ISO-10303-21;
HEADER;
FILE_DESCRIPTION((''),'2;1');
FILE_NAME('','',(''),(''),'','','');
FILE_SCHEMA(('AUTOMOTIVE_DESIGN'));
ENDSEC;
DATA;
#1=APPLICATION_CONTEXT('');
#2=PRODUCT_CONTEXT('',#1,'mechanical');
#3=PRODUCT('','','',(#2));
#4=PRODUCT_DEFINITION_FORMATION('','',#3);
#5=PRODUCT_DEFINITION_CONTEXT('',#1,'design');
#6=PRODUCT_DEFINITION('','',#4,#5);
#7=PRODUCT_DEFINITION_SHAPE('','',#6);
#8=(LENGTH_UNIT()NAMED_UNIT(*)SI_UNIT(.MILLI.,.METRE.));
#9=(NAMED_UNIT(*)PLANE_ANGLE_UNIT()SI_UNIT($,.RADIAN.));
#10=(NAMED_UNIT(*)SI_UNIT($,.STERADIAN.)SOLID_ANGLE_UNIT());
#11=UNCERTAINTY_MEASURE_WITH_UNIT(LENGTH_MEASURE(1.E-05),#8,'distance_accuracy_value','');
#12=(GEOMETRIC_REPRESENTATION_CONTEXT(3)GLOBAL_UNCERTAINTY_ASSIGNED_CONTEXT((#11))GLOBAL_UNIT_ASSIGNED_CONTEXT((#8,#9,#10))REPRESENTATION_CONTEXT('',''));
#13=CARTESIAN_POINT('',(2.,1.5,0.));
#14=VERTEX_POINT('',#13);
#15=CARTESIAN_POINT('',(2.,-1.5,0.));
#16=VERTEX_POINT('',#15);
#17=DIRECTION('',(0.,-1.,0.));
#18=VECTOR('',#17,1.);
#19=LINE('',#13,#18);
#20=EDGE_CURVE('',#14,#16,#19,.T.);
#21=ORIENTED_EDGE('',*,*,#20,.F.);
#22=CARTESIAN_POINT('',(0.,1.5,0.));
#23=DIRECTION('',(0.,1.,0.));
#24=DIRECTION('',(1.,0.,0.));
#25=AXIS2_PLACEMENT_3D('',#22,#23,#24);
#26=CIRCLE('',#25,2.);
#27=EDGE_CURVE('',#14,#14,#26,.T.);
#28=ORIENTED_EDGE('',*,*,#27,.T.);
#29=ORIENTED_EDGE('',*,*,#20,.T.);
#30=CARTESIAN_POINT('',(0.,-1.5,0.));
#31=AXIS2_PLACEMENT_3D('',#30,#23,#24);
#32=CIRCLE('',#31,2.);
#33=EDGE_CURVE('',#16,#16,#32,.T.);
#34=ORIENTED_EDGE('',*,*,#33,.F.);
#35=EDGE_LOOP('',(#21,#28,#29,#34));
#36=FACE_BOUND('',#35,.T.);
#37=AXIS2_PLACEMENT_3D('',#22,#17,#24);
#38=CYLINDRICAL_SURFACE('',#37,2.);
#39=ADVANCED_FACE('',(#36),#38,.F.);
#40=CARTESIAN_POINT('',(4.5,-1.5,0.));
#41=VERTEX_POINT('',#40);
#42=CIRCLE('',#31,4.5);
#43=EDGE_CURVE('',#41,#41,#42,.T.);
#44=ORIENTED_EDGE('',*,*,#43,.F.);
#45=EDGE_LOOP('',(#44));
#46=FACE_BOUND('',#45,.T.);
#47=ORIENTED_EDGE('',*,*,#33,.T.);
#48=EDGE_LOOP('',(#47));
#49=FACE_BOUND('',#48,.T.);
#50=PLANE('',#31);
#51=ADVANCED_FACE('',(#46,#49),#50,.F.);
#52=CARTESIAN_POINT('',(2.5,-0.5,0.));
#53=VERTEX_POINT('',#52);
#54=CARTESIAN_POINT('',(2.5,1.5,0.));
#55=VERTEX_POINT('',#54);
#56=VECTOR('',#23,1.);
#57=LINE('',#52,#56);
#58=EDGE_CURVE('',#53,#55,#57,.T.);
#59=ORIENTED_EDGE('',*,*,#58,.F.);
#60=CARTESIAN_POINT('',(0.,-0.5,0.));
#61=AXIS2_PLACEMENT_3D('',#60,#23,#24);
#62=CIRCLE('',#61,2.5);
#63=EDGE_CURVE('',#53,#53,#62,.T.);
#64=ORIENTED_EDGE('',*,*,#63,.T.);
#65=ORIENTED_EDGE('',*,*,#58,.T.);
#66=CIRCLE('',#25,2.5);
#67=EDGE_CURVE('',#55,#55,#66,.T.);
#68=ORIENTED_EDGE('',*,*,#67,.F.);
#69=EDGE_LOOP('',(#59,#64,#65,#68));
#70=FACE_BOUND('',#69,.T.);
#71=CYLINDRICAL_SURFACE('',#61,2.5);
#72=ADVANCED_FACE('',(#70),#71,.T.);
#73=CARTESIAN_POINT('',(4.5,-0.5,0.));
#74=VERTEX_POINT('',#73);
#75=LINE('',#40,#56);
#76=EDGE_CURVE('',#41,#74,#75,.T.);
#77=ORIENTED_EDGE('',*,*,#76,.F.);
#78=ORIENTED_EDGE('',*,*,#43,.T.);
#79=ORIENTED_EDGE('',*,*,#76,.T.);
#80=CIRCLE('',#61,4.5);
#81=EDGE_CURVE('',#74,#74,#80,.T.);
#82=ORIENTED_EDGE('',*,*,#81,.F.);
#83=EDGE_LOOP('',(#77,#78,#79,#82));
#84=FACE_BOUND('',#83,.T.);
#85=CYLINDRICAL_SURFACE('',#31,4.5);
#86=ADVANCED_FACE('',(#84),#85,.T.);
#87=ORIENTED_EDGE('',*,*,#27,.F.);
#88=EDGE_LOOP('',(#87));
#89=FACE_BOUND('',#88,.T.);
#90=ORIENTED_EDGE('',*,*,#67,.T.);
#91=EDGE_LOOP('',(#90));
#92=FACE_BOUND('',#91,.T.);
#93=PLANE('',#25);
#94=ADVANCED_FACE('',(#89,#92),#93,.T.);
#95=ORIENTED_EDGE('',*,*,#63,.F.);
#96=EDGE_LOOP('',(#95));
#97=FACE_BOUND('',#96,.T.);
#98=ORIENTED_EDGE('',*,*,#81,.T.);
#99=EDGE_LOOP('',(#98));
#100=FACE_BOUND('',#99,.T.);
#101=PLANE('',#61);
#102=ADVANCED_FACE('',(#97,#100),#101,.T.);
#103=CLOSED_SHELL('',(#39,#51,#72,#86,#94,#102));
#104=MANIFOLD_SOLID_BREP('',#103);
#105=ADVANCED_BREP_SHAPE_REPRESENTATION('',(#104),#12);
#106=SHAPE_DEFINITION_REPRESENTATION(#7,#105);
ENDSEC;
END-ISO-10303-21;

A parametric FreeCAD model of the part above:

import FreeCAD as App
import Part
import Sketcher
from FreeCAD import Vector


def add_polygon(sketch, points):
    """Adds a closed chain of lines whose ends are joined by coincident constraints."""
    first, n = sketch.GeometryCount, len(points)
    for a, b in zip(points, points[1:] + points[:1]):
        sketch.addGeometry(Part.LineSegment(App.Vector(*a, 0), App.Vector(*b, 0)), False)
    for i in range(n):
        sketch.addConstraint(Sketcher.Constraint("Coincident", first + i, 2, first + (i + 1) % n, 1))

doc = App.newDocument("Part")
body = doc.addObject("PartDesign::Body", "Body")

# Sketch on XY plane
sketch1 = body.newObject("Sketcher::SketchObject", "Sketch")
sketch1.AttachmentSupport = (doc.getObject("XY_Plane"), [""])
sketch1.MapMode = "FlatFace"
add_polygon(sketch1, [(2.5, 1.5), (2, 1.5), (2, -1.5), (4.5, -1.5), (4.5, -0.5), (2.5, -0.5)])  # lines 0-5
sketch1.addConstraint(Sketcher.Constraint("Horizontal", 0))
sketch1.addConstraint(Sketcher.Constraint("Vertical", 1))
sketch1.addConstraint(Sketcher.Constraint("Horizontal", 2))
sketch1.addConstraint(Sketcher.Constraint("Vertical", 3))
sketch1.addConstraint(Sketcher.Constraint("Horizontal", 4))
sketch1.addConstraint(Sketcher.Constraint("Vertical", 5))
sketch1.addConstraint(Sketcher.Constraint("Equal", 4, 5))
sketch1.addConstraint(Sketcher.Constraint("DistanceX", 4, 2, 4, 1, 2.0))
sketch1.addConstraint(Sketcher.Constraint("DistanceY", 3, 1, 3, 2, 1.0))
sketch1.addConstraint(Sketcher.Constraint("DistanceX", 2, 1, 2, 2, 2.5))
sketch1.addConstraint(Sketcher.Constraint("DistanceX", -1, 1, 0, 2, 2.0))
sketch1.addConstraint(Sketcher.Constraint("DistanceY", -1, 1, 0, 2, 1.5))
revolution = body.newObject("PartDesign::Revolution", "Revolution")
revolution.Profile = sketch1
revolution.ReferenceAxis = (sketch1, ["V_Axis"])
revolution.Angle = 360

doc.recompute()
